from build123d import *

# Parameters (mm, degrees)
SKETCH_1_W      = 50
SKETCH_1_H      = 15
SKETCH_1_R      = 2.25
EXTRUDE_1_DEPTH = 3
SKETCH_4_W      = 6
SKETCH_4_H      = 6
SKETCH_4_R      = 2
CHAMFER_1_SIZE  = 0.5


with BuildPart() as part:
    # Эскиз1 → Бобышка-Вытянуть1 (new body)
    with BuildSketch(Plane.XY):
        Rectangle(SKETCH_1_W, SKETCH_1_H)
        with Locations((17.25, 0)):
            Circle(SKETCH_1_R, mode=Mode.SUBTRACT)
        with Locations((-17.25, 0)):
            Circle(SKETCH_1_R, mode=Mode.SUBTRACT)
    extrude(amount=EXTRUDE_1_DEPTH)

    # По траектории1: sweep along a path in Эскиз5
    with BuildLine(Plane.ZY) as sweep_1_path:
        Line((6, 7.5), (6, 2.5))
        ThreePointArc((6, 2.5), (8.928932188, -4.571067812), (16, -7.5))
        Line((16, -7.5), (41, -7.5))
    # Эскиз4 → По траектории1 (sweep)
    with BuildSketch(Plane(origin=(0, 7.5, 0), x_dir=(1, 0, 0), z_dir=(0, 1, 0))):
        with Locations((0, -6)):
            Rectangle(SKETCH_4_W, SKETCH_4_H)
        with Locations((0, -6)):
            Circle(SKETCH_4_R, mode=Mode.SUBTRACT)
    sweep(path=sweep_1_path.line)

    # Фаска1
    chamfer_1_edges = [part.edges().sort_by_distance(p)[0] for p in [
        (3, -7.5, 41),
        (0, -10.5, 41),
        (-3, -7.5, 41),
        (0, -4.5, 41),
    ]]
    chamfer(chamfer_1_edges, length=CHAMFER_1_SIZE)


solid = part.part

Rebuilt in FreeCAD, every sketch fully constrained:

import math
import FreeCAD as App
import Part
import Sketcher
from FreeCAD import Vector


def edges_at(feature, points):
    """Names of the edges that pass closest to the given points."""
    edges = feature.Shape.Edges
    near = lambda p: min(range(len(edges)), key=lambda i: edges[i].distToShape(Part.Vertex(*p))[0])
    return sorted({f"Edge{near(p) + 1}" for p in points})


def add_polygon(sketch, points):
    """Adds a closed chain of lines whose ends are joined by coincident constraints."""
    first, n = sketch.GeometryCount, len(points)
    for a, b in zip(points, points[1:] + points[:1]):
        sketch.addGeometry(Part.LineSegment(App.Vector(*a, 0), App.Vector(*b, 0)), False)
    for i in range(n):
        sketch.addConstraint(Sketcher.Constraint("Coincident", first + i, 2, first + (i + 1) % n, 1))

doc = App.newDocument("Part")
body = doc.addObject("PartDesign::Body", "Body")

# Sketch on XY plane
sketch1 = body.newObject("Sketcher::SketchObject", "Sketch")
sketch1.AttachmentSupport = (doc.getObject("XY_Plane"), [""])
sketch1.MapMode = "FlatFace"
add_polygon(sketch1, [(-25, 7.5), (-25, -7.5), (25, -7.5), (25, 7.5)])  # lines 0-3
sketch1.addGeometry(Part.Circle(Vector(-17.2, 0, 0), Vector(0, 0, 1), 2.2), False)  # 4
sketch1.addGeometry(Part.Circle(Vector(17.2, 0, 0), Vector(0, 0, 1), 2.2), False)  # 5
sketch1.addConstraint([
    Sketcher.Constraint("Vertical", 0),
    Sketcher.Constraint("Horizontal", 1),
    Sketcher.Constraint("Vertical", 2),
    Sketcher.Constraint("Horizontal", 3),
    Sketcher.Constraint("Equal", 4, 5),
    Sketcher.Constraint("Symmetric", 4, 3, 5, 3, -1, 1),
    Sketcher.Constraint("Symmetric", 0, 2, 2, 2, -1, 1),
    Sketcher.Constraint("PointOnObject", 4, 3, -1),
    Sketcher.Constraint("Diameter", 4, 4.5),
    Sketcher.Constraint("DistanceX", 1, 1, 1, 2, 50.0),
    Sketcher.Constraint("DistanceY", 0, 2, 0, 1, 15.0),
    Sketcher.Constraint("DistanceX", 4, 3, 5, 3, 34.5),
])
pad1 = body.newObject("PartDesign::Pad", "Pad")
pad1.Profile = sketch1
pad1.Length = 3

# Sketch on XZ plane
sketch2 = body.newObject("Sketcher::SketchObject", "Sketch001")
sketch2.AttachmentSupport = (doc.getObject("XZ_Plane"), [""])
sketch2.MapMode = "FlatFace"
sketch2.AttachmentOffset = App.Placement(Vector(0, 0, -7.5), App.Rotation())
add_polygon(sketch2, [(-3, 3), (-3, 9), (3, 9), (3, 3)])  # lines 0-3
sketch2.addGeometry(Part.Circle(Vector(0, 6, 0), Vector(0, 0, 1), 2), False)  # 4
sketch2.addConstraint([
    Sketcher.Constraint("Vertical", 0),
    Sketcher.Constraint("Horizontal", 1),
    Sketcher.Constraint("Vertical", 2),
    Sketcher.Constraint("Horizontal", 3),
    Sketcher.Constraint("PointOnObject", 4, 3, -2),
    Sketcher.Constraint("Equal", 3, 0),
    Sketcher.Constraint("Diameter", 4, 4.0),
    Sketcher.Constraint("DistanceX", 1, 1, 1, 2, 6.0),
    Sketcher.Constraint("DistanceY", -1, 1, 4, 3, 6.0),
    Sketcher.Constraint("DistanceX", 0, 2, -1, 1, 3.0),
    Sketcher.Constraint("DistanceY", -1, 1, 0, 2, 9.0),
])

# Sketch on YZ plane
sketch3 = body.newObject("Sketcher::SketchObject", "Sketch002")
sketch3.AttachmentSupport = (doc.getObject("YZ_Plane"), [""])
sketch3.MapMode = "FlatFace"
sketch3.addGeometry([
    Part.LineSegment(Vector(8, 6, 0), Vector(2, 6, 0)),
    Part.ArcOfCircle(Part.Circle(Vector(2, 16, 0), Vector(0, 0, 1), 10), math.radians(180), math.radians(270)),
    Part.LineSegment(Vector(-8, 16, 0), Vector(-8, 41, 0)),
], False)
sketch3.addConstraint([
    Sketcher.Constraint("Tangent", 0, 2, 1, 2),
    Sketcher.Constraint("Tangent", 1, 1, 2, 1),
    Sketcher.Constraint("Horizontal", 0),
    Sketcher.Constraint("Vertical", 2),
    Sketcher.Constraint("Radius", 1, 10.0),
    Sketcher.Constraint("DistanceX", 0, 2, 0, 1, 5.0),
    Sketcher.Constraint("DistanceY", 2, 1, 2, 2, 25.0),
    Sketcher.Constraint("DistanceY", -1, 1, 1, 3, 16.0),
    Sketcher.Constraint("DistanceX", -1, 1, 1, 3, 2.5),
])
doc.recompute()

additivepipe = body.newObject("PartDesign::AdditivePipe", "AdditivePipe")
additivepipe.Profile = sketch2
additivepipe.Spine = (sketch3, ["Edge1", "Edge2", "Edge3"])
doc.recompute()

chamfer = body.newObject("PartDesign::Chamfer", "Chamfer")
chamfer.Base = (additivepipe, edges_at(additivepipe, [
    (3, -7.5, 41),
    (0, -10.5, 41),
    (-3, -7.5, 41),
    (0, -4.5, 41),
]))
chamfer.Size = 0.5

doc.recompute()
